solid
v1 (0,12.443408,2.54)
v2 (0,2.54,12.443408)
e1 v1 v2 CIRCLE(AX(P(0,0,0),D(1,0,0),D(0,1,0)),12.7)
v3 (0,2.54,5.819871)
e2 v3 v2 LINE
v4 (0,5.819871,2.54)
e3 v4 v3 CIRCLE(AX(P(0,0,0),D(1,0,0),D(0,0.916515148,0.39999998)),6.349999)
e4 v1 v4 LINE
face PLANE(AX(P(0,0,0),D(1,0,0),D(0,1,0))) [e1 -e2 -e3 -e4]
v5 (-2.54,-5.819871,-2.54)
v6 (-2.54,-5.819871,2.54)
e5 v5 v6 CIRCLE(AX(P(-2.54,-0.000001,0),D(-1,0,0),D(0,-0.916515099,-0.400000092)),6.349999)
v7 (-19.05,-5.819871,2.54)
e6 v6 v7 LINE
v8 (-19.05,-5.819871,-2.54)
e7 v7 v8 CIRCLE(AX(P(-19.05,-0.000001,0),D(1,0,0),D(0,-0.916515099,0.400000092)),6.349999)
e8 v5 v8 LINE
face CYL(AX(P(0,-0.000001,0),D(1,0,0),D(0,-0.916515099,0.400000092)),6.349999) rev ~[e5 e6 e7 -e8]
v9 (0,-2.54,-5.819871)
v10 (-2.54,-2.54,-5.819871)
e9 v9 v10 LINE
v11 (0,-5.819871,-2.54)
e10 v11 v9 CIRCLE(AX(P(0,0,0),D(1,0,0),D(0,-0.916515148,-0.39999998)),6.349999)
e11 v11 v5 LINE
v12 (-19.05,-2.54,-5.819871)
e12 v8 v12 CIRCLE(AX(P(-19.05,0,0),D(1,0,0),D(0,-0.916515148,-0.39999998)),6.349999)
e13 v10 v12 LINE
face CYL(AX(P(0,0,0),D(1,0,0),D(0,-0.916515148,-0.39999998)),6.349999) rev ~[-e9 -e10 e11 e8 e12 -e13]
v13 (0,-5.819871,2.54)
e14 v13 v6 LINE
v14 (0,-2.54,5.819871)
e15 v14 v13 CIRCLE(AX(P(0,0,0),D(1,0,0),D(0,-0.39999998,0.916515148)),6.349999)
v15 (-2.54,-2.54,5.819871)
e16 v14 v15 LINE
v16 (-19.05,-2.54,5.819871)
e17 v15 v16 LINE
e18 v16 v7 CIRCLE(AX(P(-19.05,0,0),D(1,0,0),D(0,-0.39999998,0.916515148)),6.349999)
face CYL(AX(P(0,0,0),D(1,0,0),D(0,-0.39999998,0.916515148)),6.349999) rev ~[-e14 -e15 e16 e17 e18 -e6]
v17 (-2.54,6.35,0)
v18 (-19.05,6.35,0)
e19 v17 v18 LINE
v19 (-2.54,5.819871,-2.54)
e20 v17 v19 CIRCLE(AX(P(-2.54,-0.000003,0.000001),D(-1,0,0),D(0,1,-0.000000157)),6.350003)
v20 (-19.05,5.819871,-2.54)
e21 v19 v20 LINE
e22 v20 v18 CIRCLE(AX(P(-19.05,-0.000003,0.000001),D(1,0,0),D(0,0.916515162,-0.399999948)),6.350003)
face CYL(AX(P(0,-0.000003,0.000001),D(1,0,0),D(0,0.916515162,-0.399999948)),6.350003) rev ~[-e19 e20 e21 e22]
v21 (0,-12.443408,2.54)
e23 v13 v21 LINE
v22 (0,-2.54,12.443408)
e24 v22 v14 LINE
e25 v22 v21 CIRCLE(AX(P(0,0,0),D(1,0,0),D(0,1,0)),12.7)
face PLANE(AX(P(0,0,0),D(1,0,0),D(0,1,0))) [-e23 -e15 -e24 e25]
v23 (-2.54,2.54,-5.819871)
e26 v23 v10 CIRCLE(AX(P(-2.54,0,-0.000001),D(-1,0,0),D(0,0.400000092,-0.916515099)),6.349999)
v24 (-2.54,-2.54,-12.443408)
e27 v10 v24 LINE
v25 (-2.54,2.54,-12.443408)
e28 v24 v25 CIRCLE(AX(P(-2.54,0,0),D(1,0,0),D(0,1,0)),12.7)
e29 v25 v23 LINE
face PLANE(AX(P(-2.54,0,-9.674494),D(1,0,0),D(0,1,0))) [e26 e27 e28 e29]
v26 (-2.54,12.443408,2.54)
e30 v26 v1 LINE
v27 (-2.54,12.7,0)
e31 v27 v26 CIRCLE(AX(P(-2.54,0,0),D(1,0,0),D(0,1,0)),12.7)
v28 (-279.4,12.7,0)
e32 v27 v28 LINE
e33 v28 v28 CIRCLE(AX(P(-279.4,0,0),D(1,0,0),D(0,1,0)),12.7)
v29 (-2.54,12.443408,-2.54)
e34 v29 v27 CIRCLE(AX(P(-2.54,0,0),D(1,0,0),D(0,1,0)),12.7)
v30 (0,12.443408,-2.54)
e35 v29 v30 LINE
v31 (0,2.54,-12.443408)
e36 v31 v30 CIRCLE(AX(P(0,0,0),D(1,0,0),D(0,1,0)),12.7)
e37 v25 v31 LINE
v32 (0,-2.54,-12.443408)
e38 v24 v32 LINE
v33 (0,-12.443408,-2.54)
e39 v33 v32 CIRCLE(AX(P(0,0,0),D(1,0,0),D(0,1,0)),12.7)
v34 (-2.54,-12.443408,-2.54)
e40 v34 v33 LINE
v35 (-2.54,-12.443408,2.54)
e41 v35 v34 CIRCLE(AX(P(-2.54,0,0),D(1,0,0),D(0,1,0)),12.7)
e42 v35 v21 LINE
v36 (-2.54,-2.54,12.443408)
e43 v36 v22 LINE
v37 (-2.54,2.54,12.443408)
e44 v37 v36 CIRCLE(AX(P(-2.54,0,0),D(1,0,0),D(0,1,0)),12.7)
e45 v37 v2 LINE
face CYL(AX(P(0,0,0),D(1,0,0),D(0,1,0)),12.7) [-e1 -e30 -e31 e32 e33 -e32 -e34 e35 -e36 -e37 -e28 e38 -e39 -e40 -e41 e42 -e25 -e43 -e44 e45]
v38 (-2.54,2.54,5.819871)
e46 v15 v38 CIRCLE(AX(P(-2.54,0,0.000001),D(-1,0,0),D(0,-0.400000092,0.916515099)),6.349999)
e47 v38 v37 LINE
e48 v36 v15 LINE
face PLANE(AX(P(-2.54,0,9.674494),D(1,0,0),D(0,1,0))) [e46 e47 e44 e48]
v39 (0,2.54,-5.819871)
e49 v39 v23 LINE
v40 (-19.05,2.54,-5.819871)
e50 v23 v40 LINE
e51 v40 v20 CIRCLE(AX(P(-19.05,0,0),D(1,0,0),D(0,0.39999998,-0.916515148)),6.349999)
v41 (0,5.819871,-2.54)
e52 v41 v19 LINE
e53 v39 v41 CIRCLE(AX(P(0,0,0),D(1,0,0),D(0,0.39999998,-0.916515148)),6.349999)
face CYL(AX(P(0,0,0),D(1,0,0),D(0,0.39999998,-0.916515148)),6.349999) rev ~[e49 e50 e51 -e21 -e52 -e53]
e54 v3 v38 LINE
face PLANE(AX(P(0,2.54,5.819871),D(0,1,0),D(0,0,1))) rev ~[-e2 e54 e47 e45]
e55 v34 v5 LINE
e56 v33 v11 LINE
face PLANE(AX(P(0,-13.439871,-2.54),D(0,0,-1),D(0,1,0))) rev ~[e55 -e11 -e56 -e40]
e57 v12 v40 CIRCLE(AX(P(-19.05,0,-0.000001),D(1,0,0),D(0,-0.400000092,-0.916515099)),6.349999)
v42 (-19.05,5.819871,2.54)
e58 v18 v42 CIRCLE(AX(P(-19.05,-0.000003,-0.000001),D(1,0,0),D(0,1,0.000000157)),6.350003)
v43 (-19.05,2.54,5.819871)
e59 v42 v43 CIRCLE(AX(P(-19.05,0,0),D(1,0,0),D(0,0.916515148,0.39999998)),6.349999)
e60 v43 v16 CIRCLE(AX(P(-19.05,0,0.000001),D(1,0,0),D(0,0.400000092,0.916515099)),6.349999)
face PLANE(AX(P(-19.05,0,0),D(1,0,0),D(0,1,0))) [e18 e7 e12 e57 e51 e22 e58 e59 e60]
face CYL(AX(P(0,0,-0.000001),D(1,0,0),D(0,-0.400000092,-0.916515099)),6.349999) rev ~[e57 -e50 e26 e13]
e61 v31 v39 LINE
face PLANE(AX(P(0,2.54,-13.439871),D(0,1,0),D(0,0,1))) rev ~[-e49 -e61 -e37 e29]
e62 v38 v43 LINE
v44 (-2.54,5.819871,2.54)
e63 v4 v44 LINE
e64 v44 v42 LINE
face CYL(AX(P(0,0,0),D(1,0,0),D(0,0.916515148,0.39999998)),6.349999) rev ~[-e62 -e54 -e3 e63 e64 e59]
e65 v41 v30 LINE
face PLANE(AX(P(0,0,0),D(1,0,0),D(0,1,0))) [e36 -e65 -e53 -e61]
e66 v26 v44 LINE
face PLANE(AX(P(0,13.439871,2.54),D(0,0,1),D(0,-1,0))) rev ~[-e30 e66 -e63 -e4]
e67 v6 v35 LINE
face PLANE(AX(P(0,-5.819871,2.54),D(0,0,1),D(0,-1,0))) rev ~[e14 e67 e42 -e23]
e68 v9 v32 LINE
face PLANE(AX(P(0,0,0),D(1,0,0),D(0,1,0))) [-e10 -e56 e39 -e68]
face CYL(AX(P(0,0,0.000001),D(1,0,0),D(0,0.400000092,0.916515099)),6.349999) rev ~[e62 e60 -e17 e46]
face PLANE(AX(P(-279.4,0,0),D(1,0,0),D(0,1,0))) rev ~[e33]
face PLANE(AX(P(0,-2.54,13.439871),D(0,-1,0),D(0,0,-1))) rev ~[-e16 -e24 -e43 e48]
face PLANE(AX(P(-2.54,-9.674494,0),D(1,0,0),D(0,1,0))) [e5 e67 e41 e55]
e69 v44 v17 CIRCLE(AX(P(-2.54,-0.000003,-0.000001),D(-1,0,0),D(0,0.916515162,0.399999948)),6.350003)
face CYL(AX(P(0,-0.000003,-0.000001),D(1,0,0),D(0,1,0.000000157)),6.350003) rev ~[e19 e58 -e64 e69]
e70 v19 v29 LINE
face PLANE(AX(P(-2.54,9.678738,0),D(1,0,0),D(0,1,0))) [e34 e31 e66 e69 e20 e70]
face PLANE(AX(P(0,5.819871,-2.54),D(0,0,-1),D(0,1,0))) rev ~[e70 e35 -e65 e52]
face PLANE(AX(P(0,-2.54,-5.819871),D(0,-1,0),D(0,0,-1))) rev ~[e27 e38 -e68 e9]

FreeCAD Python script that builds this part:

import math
import FreeCAD as App
import Part
import Sketcher
Q = App.Units.Quantity

doc = App.newDocument("Part")
body = doc.addObject("PartDesign::Body", "Body")

# Sketch on YZ plane
sketch1 = body.newObject("Sketcher::SketchObject", "Sketch")
sketch1.AttachmentSupport = (doc.getObject("YZ_Plane"), [""])
sketch1.MapMode = "FlatFace"
sketch1.addGeometry(Part.Circle(App.Vector(0, 0, 0), App.Vector(0, 0, 1), 13), False)
sketch1.addConstraint([
    Sketcher.Constraint("Coincident", 0, 3, -1, 1),
    Sketcher.Constraint("Diameter", 0, Q("1 in")),
])
pad1 = body.newObject("PartDesign::Pad", "Pad")
pad1.Profile = sketch1
pad1.Length = Q("11 in")
pad1.Reversed = True

# Sketch on YZ plane
sketch2 = body.newObject("Sketcher::SketchObject", "Sketch001")
sketch2.AttachmentSupport = (doc.getObject("YZ_Plane"), [""])
sketch2.MapMode = "FlatFace"
sketch2.addGeometry([
    Part.ArcOfCircle(Part.Circle(App.Vector(0, 0, 0), App.Vector(0, 0, 1), 6.3), math.radians(66), math.radians(114)),  # 0
    Part.LineSegment(App.Vector(2.5, 5.8, 0), App.Vector(2.5, 13.4, 0)),  # 1
    Part.LineSegment(App.Vector(2.5, 13.4, 0), App.Vector(-2.5, 13.4, 0)),  # 2
    Part.LineSegment(App.Vector(-2.5, 13.4, 0), App.Vector(-2.5, 5.8, 0)),  # 3
    Part.ArcOfCircle(Part.Circle(App.Vector(0, 0, 0), App.Vector(0, 0, 1), 6.3), math.radians(156), math.radians(204)),  # 4
    Part.LineSegment(App.Vector(-5.8, 2.5, 0), App.Vector(-13.4, 2.5, 0)),  # 5
    Part.LineSegment(App.Vector(-13.4, 2.5, 0), App.Vector(-13.4, -2.5, 0)),  # 6
    Part.LineSegment(App.Vector(-13.4, -2.5, 0), App.Vector(-5.8, -2.5, 0)),  # 7
    Part.LineSegment(App.Vector(2.5, -13.4, 0), App.Vector(2.5, -5.8, 0)),  # 8
    Part.ArcOfCircle(Part.Circle(App.Vector(0, 0, 0), App.Vector(0, 0, 1), 6.3), math.radians(-114), math.radians(-66)),  # 9
    Part.LineSegment(App.Vector(-2.5, -5.8, 0), App.Vector(-2.5, -13.4, 0)),  # 10
    Part.LineSegment(App.Vector(-2.5, -13.4, 0), App.Vector(2.5, -13.4, 0)),  # 11
    Part.ArcOfCircle(Part.Circle(App.Vector(0, 0, 0), App.Vector(0, 0, 1), 6.4), math.radians(0), math.radians(24)),  # 12
    Part.ArcOfCircle(Part.Circle(App.Vector(0, 0, 0), App.Vector(0, 0, 1), 6.4), math.radians(-24), math.radians(0)),  # 13
    Part.LineSegment(App.Vector(5.8, -2.5, 0), App.Vector(13.4, -2.5, 0)),  # 14
    Part.LineSegment(App.Vector(13.4, -2.5, 0), App.Vector(13.4, 2.5, 0)),  # 15
    Part.LineSegment(App.Vector(13.4, 2.5, 0), App.Vector(5.8, 2.5, 0)),  # 16
], False)
sketch2.addConstraint([
    Sketcher.Constraint("Coincident", 0, 1, 1, 1),
    Sketcher.Constraint("Coincident", 1, 2, 2, 1),
    Sketcher.Constraint("Coincident", 2, 2, 3, 1),
    Sketcher.Constraint("Coincident", 3, 2, 0, 2),
    Sketcher.Constraint("Coincident", 4, 1, 5, 1),
    Sketcher.Constraint("Coincident", 5, 2, 6, 1),
    Sketcher.Constraint("Coincident", 6, 2, 7, 1),
    Sketcher.Constraint("Coincident", 7, 2, 4, 2),
    Sketcher.Constraint("Coincident", 8, 2, 9, 2),
    Sketcher.Constraint("Coincident", 9, 1, 10, 1),
    Sketcher.Constraint("Coincident", 10, 2, 11, 1),
    Sketcher.Constraint("Coincident", 11, 2, 8, 1),
    Sketcher.Constraint("Tangent", 12, 1, 13, 2),
    Sketcher.Constraint("Coincident", 13, 1, 14, 1),
    Sketcher.Constraint("Coincident", 14, 2, 15, 1),
    Sketcher.Constraint("Coincident", 15, 2, 16, 1),
    Sketcher.Constraint("Coincident", 16, 2, 12, 2),
    Sketcher.Constraint("Vertical", 1),
    Sketcher.Constraint("Horizontal", 2),
    Sketcher.Constraint("Vertical", 3),
    Sketcher.Constraint("Horizontal", 5),
    Sketcher.Constraint("Vertical", 6),
    Sketcher.Constraint("Horizontal", 7),
    Sketcher.Constraint("Vertical", 8),
    Sketcher.Constraint("Vertical", 10),
    Sketcher.Constraint("Horizontal", 11),
    Sketcher.Constraint("Horizontal", 14),
    Sketcher.Constraint("Vertical", 15),
    Sketcher.Constraint("Horizontal", 16),
    Sketcher.Constraint("Coincident", 0, 3, -1, 1),
    Sketcher.Constraint("Coincident", 4, 3, -1, 1),
    Sketcher.Constraint("Coincident", 9, 3, -1, 1),
    Sketcher.Constraint("Coincident", 12, 3, -1, 1),
    Sketcher.Constraint("Equal", 0, 4),
    Sketcher.Constraint("Equal", 4, 9),
    Sketcher.Constraint("Equal", 12, 13),
    Sketcher.Constraint("Symmetric", 1, 2, 10, 2, -1, 1),
    Sketcher.Constraint("Symmetric", 4, 1, 13, 1, -1, 1),
    Sketcher.Constraint("Symmetric", 6, 2, 15, 2, -1, 1),
    Sketcher.Constraint("PointOnObject", 12, 1, -1),
    Sketcher.Constraint("Horizontal", 0, 1, 3, 2),
    Sketcher.Constraint("Horizontal", 8, 2, 9, 1),
    Sketcher.Constraint("Horizontal", 7, 2, 13, 1),
    Sketcher.Constraint("Equal", 16, 1),
    Sketcher.Constraint("Equal", 11, 6),
    Sketcher.Constraint("Radius", 0, Q("0.2499999 in")),
    Sketcher.Constraint("DistanceX", 2, 2, 2, 1, Q("0.2 in")),
    Sketcher.Constraint("DistanceX", 5, 2, 5, 1, Q("0.3 in")),
])
pocket1 = body.newObject("PartDesign::Pocket", "Pocket")
pocket1.Profile = sketch2
pocket1.Length = Q("0.1 in")

# Sketch on YZ plane
sketch3 = body.newObject("Sketcher::SketchObject", "Sketch002")
sketch3.AttachmentSupport = (doc.getObject("YZ_Plane"), [""])
sketch3.MapMode = "FlatFace"
sketch3.addGeometry([
    Part.ArcOfCircle(Part.Circle(App.Vector(0, 0, 0), App.Vector(0, 0, 1), 6.3), math.radians(24), math.radians(66)),  # 0
    Part.ArcOfCircle(Part.Circle(App.Vector(0, 0, 0), App.Vector(0, 0, 1), 6.3), math.radians(66), math.radians(114)),  # 1
    Part.ArcOfCircle(Part.Circle(App.Vector(0, 0, 0), App.Vector(0, 0, 1), 6.3), math.radians(114), math.radians(156)),  # 2
    Part.ArcOfCircle(Part.Circle(App.Vector(0, 0, 0), App.Vector(0, 0, 1), 6.3), math.radians(156), math.radians(204)),  # 3
    Part.ArcOfCircle(Part.Circle(App.Vector(0, 0, 0), App.Vector(0, 0, 1), 6.3), math.radians(-156), math.radians(-114)),  # 4
    Part.ArcOfCircle(Part.Circle(App.Vector(0, 0, 0), App.Vector(0, 0, 1), 6.3), math.radians(-114), math.radians(-66)),  # 5
    Part.ArcOfCircle(Part.Circle(App.Vector(0, 0, 0), App.Vector(0, 0, 1), 6.3), math.radians(-66), math.radians(-24)),  # 6
    Part.ArcOfCircle(Part.Circle(App.Vector(0, 0, 0), App.Vector(0, 0, 1), 6.4), math.radians(-24), math.radians(0)),  # 7
    Part.ArcOfCircle(Part.Circle(App.Vector(0, 0, 0), App.Vector(0, 0, 1), 6.4), math.radians(0), math.radians(24)),  # 8
], False)
sketch3.addConstraint([
    Sketcher.Constraint("Tangent", 0, 2, 1, 1),
    Sketcher.Constraint("Tangent", 1, 2, 2, 1),
    Sketcher.Constraint("Tangent", 2, 2, 3, 1),
    Sketcher.Constraint("Tangent", 3, 2, 4, 1),
    Sketcher.Constraint("Tangent", 4, 2, 5, 1),
    Sketcher.Constraint("Tangent", 5, 2, 6, 1),
    Sketcher.Constraint("Tangent", 6, 2, 7, 1),
    Sketcher.Constraint("Tangent", 7, 2, 8, 1),
    Sketcher.Constraint("Tangent", 8, 2, 0, 1),
    Sketcher.Constraint("Coincident", 0, 3, -1, 1),
    Sketcher.Constraint("Coincident", 2, 3, -1, 1),
    Sketcher.Constraint("Coincident", 4, 3, -1, 1),
    Sketcher.Constraint("Coincident", 6, 3, -1, 1),
    Sketcher.Constraint("PointOnObject", 7, 2, -1),
    Sketcher.Constraint("Horizontal", 0, 2, 1, 2),
    Sketcher.Constraint("Horizontal", 4, 2, 5, 2),
    Sketcher.Constraint("Horizontal", 3, 2, 6, 2),
    Sketcher.Constraint("Horizontal", 2, 2, 8, 2),
    Sketcher.Constraint("Vertical", 2, 2, 3, 2),
    Sketcher.Constraint("Vertical", 1, 2, 4, 2),
    Sketcher.Constraint("Radius", 0, Q("0.25 in")),
    Sketcher.Constraint("DistanceX", -1, 1, 0, 2, Q("0.1 in")),
    Sketcher.Constraint("DistanceY", -1, 1, 2, 2, Q("0.1 in")),
])
pocket2 = body.newObject("PartDesign::Pocket", "Pocket001")
pocket2.Profile = sketch3
pocket2.Length = Q("0.75 in")

doc.recompute()
